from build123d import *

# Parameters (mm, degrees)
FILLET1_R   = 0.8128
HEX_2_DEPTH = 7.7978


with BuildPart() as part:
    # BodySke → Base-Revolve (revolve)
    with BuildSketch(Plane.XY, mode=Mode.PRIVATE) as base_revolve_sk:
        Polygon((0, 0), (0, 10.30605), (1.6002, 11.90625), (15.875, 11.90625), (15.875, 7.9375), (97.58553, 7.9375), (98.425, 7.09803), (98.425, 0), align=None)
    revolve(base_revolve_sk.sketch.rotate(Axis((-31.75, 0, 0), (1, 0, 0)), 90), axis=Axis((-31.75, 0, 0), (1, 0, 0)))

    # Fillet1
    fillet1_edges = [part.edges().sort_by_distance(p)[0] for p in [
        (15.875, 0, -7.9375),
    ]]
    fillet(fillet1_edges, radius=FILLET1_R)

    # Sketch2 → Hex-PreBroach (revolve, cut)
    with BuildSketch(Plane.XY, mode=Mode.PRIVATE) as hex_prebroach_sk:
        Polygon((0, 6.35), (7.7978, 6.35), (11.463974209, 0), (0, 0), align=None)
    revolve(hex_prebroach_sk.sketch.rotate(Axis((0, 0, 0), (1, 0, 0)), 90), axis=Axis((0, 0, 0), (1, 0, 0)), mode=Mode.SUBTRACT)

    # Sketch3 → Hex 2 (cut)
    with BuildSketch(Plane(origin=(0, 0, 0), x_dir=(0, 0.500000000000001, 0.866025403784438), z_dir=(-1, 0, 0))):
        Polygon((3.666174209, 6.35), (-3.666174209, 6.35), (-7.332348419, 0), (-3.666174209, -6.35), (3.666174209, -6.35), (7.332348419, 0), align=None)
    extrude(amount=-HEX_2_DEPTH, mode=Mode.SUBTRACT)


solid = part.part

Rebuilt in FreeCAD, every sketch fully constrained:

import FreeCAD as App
import Part
import Sketcher
Q = App.Units.Quantity


def edges_at(feature, points):
    """Names of the edges that pass closest to the given points."""
    edges = feature.Shape.Edges
    near = lambda p: min(range(len(edges)), key=lambda i: edges[i].distToShape(Part.Vertex(*p))[0])
    return sorted({f"Edge{near(p) + 1}" for p in points})


def add_polygon(sketch, points):
    """Adds a closed chain of lines whose ends are joined by coincident constraints."""
    first, n = sketch.GeometryCount, len(points)
    for a, b in zip(points, points[1:] + points[:1]):
        sketch.addGeometry(Part.LineSegment(App.Vector(*a, 0), App.Vector(*b, 0)), False)
    for i in range(n):
        sketch.addConstraint(Sketcher.Constraint("Coincident", first + i, 2, first + (i + 1) % n, 1))

doc = App.newDocument("Part")
body = doc.addObject("PartDesign::Body", "Body")

sketch1 = doc.addObject("Sketcher::SketchObject", "Sketch")
body.addObject(sketch1)
sketch1.AttachmentSupport = (doc.XY_Plane, [""])
sketch1.MapMode = "FlatFace"
add_polygon(sketch1, [(0, 10.3), (0, 0), (98.4, 0), (98.4, 7.1), (97.6, 7.9), (15.9, 7.9), (15.9, 11.9), (1.6, 11.9)])
sketch1.addConstraint(Sketcher.Constraint("Vertical", 0))
sketch1.addConstraint(Sketcher.Constraint("Horizontal", 1))
sketch1.addConstraint(Sketcher.Constraint("Vertical", 2))
sketch1.addConstraint(Sketcher.Constraint("Horizontal", 4))
sketch1.addConstraint(Sketcher.Constraint("Vertical", 5))
sketch1.addConstraint(Sketcher.Constraint("Horizontal", 6))
sketch1.addConstraint(Sketcher.Constraint("Coincident", 0, 2, -1, 1))
sketch1.addConstraint(Sketcher.Constraint("Perpendicular", 3, 7))
sketch1.addConstraint(Sketcher.Constraint("Angle", 3, Q("135 deg")))
sketch1.addConstraint(Sketcher.Constraint("DistanceX", 1, 1, 1, 2, Q("3.875 in")))
sketch1.addConstraint(Sketcher.Constraint("DistanceX", 6, 2, 6, 1, Q("0.562 in")))
sketch1.addConstraint(Sketcher.Constraint("DistanceY", 5, 1, 5, 2, Q("0.15625 in")))
sketch1.addConstraint(Sketcher.Constraint("DistanceX", 4, 2, 2, 2, Q("3.25 in")))
sketch1.addConstraint(Sketcher.Constraint("DistanceY", -1, 1, 3, 2, Q("0.3125 in")))
sketch1.addConstraint(Sketcher.Constraint("DistanceY", 2, 2, 5, 2, Q("0.1893 in")))
revolution = doc.addObject("PartDesign::Revolution", "Revolution")
body.addObject(revolution)
revolution.Profile = sketch1
revolution.ReferenceAxis = (sketch1, ["H_Axis"])
revolution.Angle = 360
doc.recompute()

fillet = doc.addObject("PartDesign::Fillet", "Fillet")
body.addObject(fillet)
fillet.Base = (revolution, edges_at(revolution, [(15.875, 0, -7.938)]))
fillet.Radius = Q("0.032 in")

sketch2 = doc.addObject("Sketcher::SketchObject", "Sketch001")
body.addObject(sketch2)
sketch2.AttachmentSupport = (doc.XY_Plane, [""])
sketch2.MapMode = "FlatFace"
add_polygon(sketch2, [(8, 6), (0, 6), (0, 0), (11, 0)])
sketch2.addConstraint(Sketcher.Constraint("Horizontal", 0))
sketch2.addConstraint(Sketcher.Constraint("Vertical", 1))
sketch2.addConstraint(Sketcher.Constraint("Horizontal", 2))
sketch2.addConstraint(Sketcher.Constraint("Coincident", 1, 2, -1, 1))
sketch2.addConstraint(Sketcher.Constraint("Angle", 3, Q("120 deg")))
sketch2.addConstraint(Sketcher.Constraint("DistanceY", 1, 2, 1, 1, Q("0.25 in")))
sketch2.addConstraint(Sketcher.Constraint("DistanceX", 0, 2, 0, 1, Q("0.307 in")))
groove = doc.addObject("PartDesign::Groove", "Groove")
body.addObject(groove)
groove.Profile = sketch2
groove.ReferenceAxis = (sketch2, ["H_Axis"])
groove.Angle = 360

sketch3 = doc.addObject("Sketcher::SketchObject", "Sketch002")
body.addObject(sketch3)
sketch3.AttachmentSupport = (doc.YZ_Plane, [""])
sketch3.MapMode = "FlatFace"
add_polygon(sketch3, [(7, 0), (4, -6), (-4, -6), (-7, 0), (-4, 6), (4, 6)])
sketch3.addConstraint(Sketcher.Constraint("Horizontal", 1))
sketch3.addConstraint(Sketcher.Constraint("Horizontal", 4))
sketch3.addConstraint(Sketcher.Constraint("Symmetric", 0, 2, 3, 2, -1, 1))
sketch3.addConstraint(Sketcher.Constraint("Symmetric", 2, 2, 5, 2, -1, 1))
sketch3.addConstraint(Sketcher.Constraint("PointOnObject", 2, 2, -1))
sketch3.addConstraint(Sketcher.Constraint("Parallel", 2, 5))
sketch3.addConstraint(Sketcher.Constraint("Vertical", 1, 2, 3, 2))
sketch3.addConstraint(Sketcher.Constraint("Angle", 0, Q("-120 deg")))
sketch3.addConstraint(Sketcher.Constraint("DistanceY", 1, 2, 3, 2, Q("0.5 in")))
sketch3.addConstraint(Sketcher.Constraint("DistanceX", 1, 2, 1, 1, 7.332348))
pocket1 = doc.addObject("PartDesign::Pocket", "Pocket")
body.addObject(pocket1)
pocket1.Profile = sketch3
pocket1.Length = Q("0.307 in")
pocket1.Reversed = True

doc.recompute()
